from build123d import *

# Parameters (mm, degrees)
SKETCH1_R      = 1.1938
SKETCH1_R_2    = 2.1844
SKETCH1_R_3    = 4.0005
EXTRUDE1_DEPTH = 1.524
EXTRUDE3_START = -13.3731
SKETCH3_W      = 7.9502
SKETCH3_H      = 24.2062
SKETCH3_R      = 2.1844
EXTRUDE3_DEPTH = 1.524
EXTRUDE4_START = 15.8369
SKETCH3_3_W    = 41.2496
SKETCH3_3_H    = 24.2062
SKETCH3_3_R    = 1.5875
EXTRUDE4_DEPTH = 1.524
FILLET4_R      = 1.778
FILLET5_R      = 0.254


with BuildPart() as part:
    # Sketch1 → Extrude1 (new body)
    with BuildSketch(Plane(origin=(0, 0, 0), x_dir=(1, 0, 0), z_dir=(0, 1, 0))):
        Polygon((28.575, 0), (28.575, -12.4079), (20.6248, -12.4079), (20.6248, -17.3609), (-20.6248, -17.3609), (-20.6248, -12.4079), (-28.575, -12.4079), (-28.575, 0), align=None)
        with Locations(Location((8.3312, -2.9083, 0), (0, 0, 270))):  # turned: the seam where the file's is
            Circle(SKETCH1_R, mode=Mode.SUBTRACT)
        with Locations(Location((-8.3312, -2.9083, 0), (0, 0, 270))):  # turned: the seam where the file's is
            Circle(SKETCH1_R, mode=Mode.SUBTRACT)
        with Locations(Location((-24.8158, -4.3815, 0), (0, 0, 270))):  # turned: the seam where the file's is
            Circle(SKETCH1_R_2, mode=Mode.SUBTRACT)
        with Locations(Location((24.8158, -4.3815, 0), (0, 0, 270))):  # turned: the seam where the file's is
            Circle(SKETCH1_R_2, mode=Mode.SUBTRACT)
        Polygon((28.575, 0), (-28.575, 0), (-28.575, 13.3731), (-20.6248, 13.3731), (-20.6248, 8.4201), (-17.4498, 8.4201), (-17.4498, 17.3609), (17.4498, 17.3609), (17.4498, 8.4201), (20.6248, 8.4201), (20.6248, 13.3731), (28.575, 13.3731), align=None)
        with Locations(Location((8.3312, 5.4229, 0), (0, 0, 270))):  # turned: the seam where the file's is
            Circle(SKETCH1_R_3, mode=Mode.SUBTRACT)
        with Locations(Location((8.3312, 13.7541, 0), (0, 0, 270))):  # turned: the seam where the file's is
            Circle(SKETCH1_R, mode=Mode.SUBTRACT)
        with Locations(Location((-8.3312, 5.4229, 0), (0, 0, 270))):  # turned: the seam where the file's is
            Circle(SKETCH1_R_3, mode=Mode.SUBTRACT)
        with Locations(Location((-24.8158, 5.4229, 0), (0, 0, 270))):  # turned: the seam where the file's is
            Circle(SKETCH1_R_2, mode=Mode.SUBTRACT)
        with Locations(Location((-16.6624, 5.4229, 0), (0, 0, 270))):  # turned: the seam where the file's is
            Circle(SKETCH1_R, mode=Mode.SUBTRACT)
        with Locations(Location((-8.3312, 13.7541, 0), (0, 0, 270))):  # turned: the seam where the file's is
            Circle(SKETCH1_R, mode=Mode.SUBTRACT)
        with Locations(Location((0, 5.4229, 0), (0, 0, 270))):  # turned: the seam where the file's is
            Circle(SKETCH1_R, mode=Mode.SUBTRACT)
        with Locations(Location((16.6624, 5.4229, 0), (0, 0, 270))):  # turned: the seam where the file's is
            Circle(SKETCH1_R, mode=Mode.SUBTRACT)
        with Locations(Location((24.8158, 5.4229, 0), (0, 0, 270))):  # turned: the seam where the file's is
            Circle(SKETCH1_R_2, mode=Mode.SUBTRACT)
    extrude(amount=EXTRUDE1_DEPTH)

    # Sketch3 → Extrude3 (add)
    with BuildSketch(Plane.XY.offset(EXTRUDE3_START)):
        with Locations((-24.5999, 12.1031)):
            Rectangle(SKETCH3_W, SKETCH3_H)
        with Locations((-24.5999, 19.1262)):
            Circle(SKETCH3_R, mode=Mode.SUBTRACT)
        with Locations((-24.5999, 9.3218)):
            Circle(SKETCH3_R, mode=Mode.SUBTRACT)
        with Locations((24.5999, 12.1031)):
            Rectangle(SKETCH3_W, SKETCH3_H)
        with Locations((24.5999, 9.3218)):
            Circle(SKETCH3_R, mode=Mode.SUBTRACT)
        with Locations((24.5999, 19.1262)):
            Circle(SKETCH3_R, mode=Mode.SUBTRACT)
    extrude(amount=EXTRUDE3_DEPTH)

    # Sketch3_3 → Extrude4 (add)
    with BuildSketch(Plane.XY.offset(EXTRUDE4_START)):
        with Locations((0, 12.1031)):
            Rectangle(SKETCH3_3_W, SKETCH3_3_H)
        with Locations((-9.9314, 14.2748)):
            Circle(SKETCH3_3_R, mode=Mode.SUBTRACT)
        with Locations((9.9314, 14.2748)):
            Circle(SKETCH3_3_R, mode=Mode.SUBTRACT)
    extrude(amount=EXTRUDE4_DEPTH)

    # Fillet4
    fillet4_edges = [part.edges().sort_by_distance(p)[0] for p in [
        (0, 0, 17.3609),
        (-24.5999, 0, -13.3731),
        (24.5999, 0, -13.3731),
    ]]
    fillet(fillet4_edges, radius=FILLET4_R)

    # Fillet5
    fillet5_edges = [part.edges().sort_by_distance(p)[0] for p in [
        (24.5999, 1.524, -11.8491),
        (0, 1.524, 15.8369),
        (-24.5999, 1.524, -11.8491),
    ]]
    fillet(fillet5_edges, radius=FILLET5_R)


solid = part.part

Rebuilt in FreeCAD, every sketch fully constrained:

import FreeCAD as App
import Part
import Sketcher
Q = App.Units.Quantity


def edges_at(feature, points):
    """Names of the edges that pass closest to the given points."""
    edges = feature.Shape.Edges
    near = lambda p: min(range(len(edges)), key=lambda i: edges[i].distToShape(Part.Vertex(*p))[0])
    return sorted({f"Edge{near(p) + 1}" for p in points})

doc = App.newDocument("Part")
params = doc.addObject("Spreadsheet::Sheet", "Params")
for row, (alias, value) in enumerate([
    ("sketch1_diameter", "0.172 in"),
    ("sketch1_diameter2", "0.094 in"),
    ("sketch1_diameter3", "0.315 in"),
    ("sketch1_width", "0.313 in"),
    ("sketch1_width2", "0.125 in"),
    ("pad1_length", "0.06 in"),
    ("sketch2_diameter", "0.172 in"),
    ("sketch2_width", "0.313 in"),
    ("sketch2_height", "0.953 in"),
    ("pad2_length", "0.06 in"),
    ("sketch3_diameter", "0.125 in"),
    ("sketch3_width", "1.624 in"),
    ("sketch3_height", "0.953 in"),
    ("pad3_length", "0.06 in"),
    ("fillet_radius", "0.07 in"),
    ("fillet2_radius", "0.01 in"),
], start=1):
    params.set(f"A{row}", alias)
    params.set(f"B{row}", "=" + value)
    params.setAlias(f"B{row}", alias)

body = doc.addObject("PartDesign::Body", "Body")

sketch1 = body.newObject("Sketcher::SketchObject", "Sketch")
sketch1.AttachmentSupport = (doc.getObject("XZ_Plane"), [""])
sketch1.MapMode = "FlatFace"
sketch1.addGeometry(Part.LineSegment(App.Vector(28.575, 12.4079, 0), App.Vector(28.575, -13.3731, 0)), False)
sketch1.addGeometry(Part.LineSegment(App.Vector(28.575, -13.3731, 0), App.Vector(20.6248, -13.3731, 0)), False)
sketch1.addGeometry(Part.LineSegment(App.Vector(20.6248, -13.3731, 0), App.Vector(20.6248, -8.4201, 0)), False)
sketch1.addGeometry(Part.LineSegment(App.Vector(20.6248, -8.4201, 0), App.Vector(17.4498, -8.4201, 0)), False)
sketch1.addGeometry(Part.LineSegment(App.Vector(17.4498, -8.4201, 0), App.Vector(17.4498, -17.3609, 0)), False)
sketch1.addGeometry(Part.LineSegment(App.Vector(17.4498, -17.3609, 0), App.Vector(-17.4498, -17.3609, 0)), False)
sketch1.addGeometry(Part.LineSegment(App.Vector(-17.4498, -17.3609, 0), App.Vector(-17.4498, -8.4201, 0)), False)
sketch1.addGeometry(Part.LineSegment(App.Vector(-17.4498, -8.4201, 0), App.Vector(-20.6248, -8.4201, 0)), False)
sketch1.addGeometry(Part.LineSegment(App.Vector(-20.6248, -8.4201, 0), App.Vector(-20.6248, -13.3731, 0)), False)
sketch1.addGeometry(Part.LineSegment(App.Vector(-20.6248, -13.3731, 0), App.Vector(-28.575, -13.3731, 0)), False)
sketch1.addGeometry(Part.LineSegment(App.Vector(-28.575, -13.3731, 0), App.Vector(-28.575, 12.4079, 0)), False)
sketch1.addGeometry(Part.LineSegment(App.Vector(-28.575, 12.4079, 0), App.Vector(-20.6248, 12.4079, 0)), False)
sketch1.addGeometry(Part.LineSegment(App.Vector(-20.6248, 12.4079, 0), App.Vector(-20.6248, 17.3609, 0)), False)
sketch1.addGeometry(Part.LineSegment(App.Vector(-20.6248, 17.3609, 0), App.Vector(20.6248, 17.3609, 0)), False)
sketch1.addGeometry(Part.LineSegment(App.Vector(20.6248, 17.3609, 0), App.Vector(20.6248, 12.4079, 0)), False)
sketch1.addGeometry(Part.LineSegment(App.Vector(20.6248, 12.4079, 0), App.Vector(28.575, 12.4079, 0)), False)
sketch1.addGeometry(Part.Circle(App.Vector(24.8158, 4.3815, 0), App.Vector(0, 0, 1), 2.1844), False)
sketch1.addGeometry(Part.Circle(App.Vector(8.3312, 2.9083, 0), App.Vector(0, 0, 1), 1.1938), False)
sketch1.addGeometry(Part.Circle(App.Vector(-8.3312, 2.9083, 0), App.Vector(0, 0, 1), 1.1938), False)
sketch1.addGeometry(Part.Circle(App.Vector(-24.8158, 4.3815, 0), App.Vector(0, 0, 1), 2.1844), False)
sketch1.addGeometry(Part.Circle(App.Vector(24.8158, -5.4229, 0), App.Vector(0, 0, 1), 2.1844), False)
sketch1.addGeometry(Part.Circle(App.Vector(16.6624, -5.4229, 0), App.Vector(0, 0, 1), 1.1938), False)
sketch1.addGeometry(Part.Circle(App.Vector(8.3312, -5.4229, 0), App.Vector(0, 0, 1), 4.0005), False)
sketch1.addGeometry(Part.Circle(App.Vector(8.3312, -13.7541, 0), App.Vector(0, 0, 1), 1.1938), False)
sketch1.addGeometry(Part.Circle(App.Vector(0, -5.4229, 0), App.Vector(0, 0, 1), 1.1938), False)
sketch1.addGeometry(Part.Circle(App.Vector(-8.3312, -5.4229, 0), App.Vector(0, 0, 1), 4.0005), False)
sketch1.addGeometry(Part.Circle(App.Vector(-16.6624, -5.4229, 0), App.Vector(0, 0, 1), 1.1938), False)
sketch1.addGeometry(Part.Circle(App.Vector(-24.8158, -5.4229, 0), App.Vector(0, 0, 1), 2.1844), False)
sketch1.addGeometry(Part.Circle(App.Vector(-8.3312, -13.7541, 0), App.Vector(0, 0, 1), 1.1938), False)
sketch1.addConstraint(Sketcher.Constraint("Coincident", 0, 2, 1, 1))
sketch1.addConstraint(Sketcher.Constraint("Coincident", 1, 2, 2, 1))
sketch1.addConstraint(Sketcher.Constraint("Coincident", 2, 2, 3, 1))
sketch1.addConstraint(Sketcher.Constraint("Coincident", 3, 2, 4, 1))
sketch1.addConstraint(Sketcher.Constraint("Coincident", 4, 2, 5, 1))
sketch1.addConstraint(Sketcher.Constraint("Coincident", 5, 2, 6, 1))
sketch1.addConstraint(Sketcher.Constraint("Coincident", 6, 2, 7, 1))
sketch1.addConstraint(Sketcher.Constraint("Coincident", 7, 2, 8, 1))
sketch1.addConstraint(Sketcher.Constraint("Coincident", 8, 2, 9, 1))
sketch1.addConstraint(Sketcher.Constraint("Coincident", 9, 2, 10, 1))
sketch1.addConstraint(Sketcher.Constraint("Coincident", 10, 2, 11, 1))
sketch1.addConstraint(Sketcher.Constraint("Coincident", 11, 2, 12, 1))
sketch1.addConstraint(Sketcher.Constraint("Coincident", 12, 2, 13, 1))
sketch1.addConstraint(Sketcher.Constraint("Coincident", 13, 2, 14, 1))
sketch1.addConstraint(Sketcher.Constraint("Coincident", 14, 2, 15, 1))
sketch1.addConstraint(Sketcher.Constraint("Coincident", 15, 2, 0, 1))
sketch1.addConstraint(Sketcher.Constraint("Vertical", 0))
sketch1.addConstraint(Sketcher.Constraint("Horizontal", 1))
sketch1.addConstraint(Sketcher.Constraint("Vertical", 2))
sketch1.addConstraint(Sketcher.Constraint("Horizontal", 3))
sketch1.addConstraint(Sketcher.Constraint("Vertical", 4))
sketch1.addConstraint(Sketcher.Constraint("Horizontal", 5))
sketch1.addConstraint(Sketcher.Constraint("Vertical", 6))
sketch1.addConstraint(Sketcher.Constraint("Horizontal", 7))
sketch1.addConstraint(Sketcher.Constraint("Vertical", 8))
sketch1.addConstraint(Sketcher.Constraint("Horizontal", 9))
sketch1.addConstraint(Sketcher.Constraint("Vertical", 10))
sketch1.addConstraint(Sketcher.Constraint("Horizontal", 11))
sketch1.addConstraint(Sketcher.Constraint("Vertical", 12))
sketch1.addConstraint(Sketcher.Constraint("Horizontal", 13))
sketch1.addConstraint(Sketcher.Constraint("Vertical", 14))
sketch1.addConstraint(Sketcher.Constraint("Horizontal", 15))
sketch1.addConstraint(Sketcher.Constraint("Equal", 17, 18))
sketch1.addConstraint(Sketcher.Constraint("Equal", 16, 19))
sketch1.addConstraint(Sketcher.Constraint("Equal", 19, 20))
sketch1.addConstraint(Sketcher.Constraint("Equal", 18, 21))
sketch1.addConstraint(Sketcher.Constraint("Equal", 21, 23))
sketch1.addConstraint(Sketcher.Constraint("Equal", 23, 24))
sketch1.addConstraint(Sketcher.Constraint("Equal", 22, 25))
sketch1.addConstraint(Sketcher.Constraint("Equal", 24, 26))
sketch1.addConstraint(Sketcher.Constraint("Equal", 20, 27))
sketch1.addConstraint(Sketcher.Constraint("Equal", 26, 28))
sketch1.addConstraint(Sketcher.Constraint("Symmetric", 17, 3, 18, 3, -2))
sketch1.addConstraint(Sketcher.Constraint("Symmetric", 16, 3, 19, 3, -2))
sketch1.addConstraint(Sketcher.Constraint("Symmetric", 22, 3, 25, 3, -2))
sketch1.addConstraint(Sketcher.Constraint("Symmetric", 21, 3, 26, 3, -2))
sketch1.addConstraint(Sketcher.Constraint("Symmetric", 20, 3, 27, 3, -2))
sketch1.addConstraint(Sketcher.Constraint("Symmetric", 23, 3, 28, 3, -2))
sketch1.addConstraint(Sketcher.Constraint("Symmetric", 3, 2, 6, 2, -2))
sketch1.addConstraint(Sketcher.Constraint("Symmetric", 1, 2, 8, 2, -2))
sketch1.addConstraint(Sketcher.Constraint("Symmetric", 11, 2, 14, 2, -2))
sketch1.addConstraint(Sketcher.Constraint("PointOnObject", 24, 3, -2))
sketch1.addConstraint(Sketcher.Constraint("Horizontal", 20, 3, 21, 3))
sketch1.addConstraint(Sketcher.Constraint("Horizontal", 21, 3, 22, 3))
sketch1.addConstraint(Sketcher.Constraint("Horizontal", 22, 3, 24, 3))
sketch1.addConstraint(Sketcher.Constraint("Vertical", 16, 3, 20, 3))
sketch1.addConstraint(Sketcher.Constraint("Vertical", 17, 3, 22, 3))
sketch1.addConstraint(Sketcher.Constraint("Vertical", 22, 3, 23, 3))
sketch1.addConstraint(Sketcher.Constraint("Vertical", 8, 2, 11, 2))
sketch1.addConstraint(Sketcher.Constraint("Equal", 1, 9))
sketch1.addConstraint(Sketcher.Constraint("Equal", 8, 12))
sketch1.addConstraint(Sketcher.Constraint("Diameter", 16, Q("0.172 in")))
sketch1.addConstraint(Sketcher.Constraint("Diameter", 17, Q("0.094 in")))
sketch1.addConstraint(Sketcher.Constraint("Diameter", 22, Q("0.315 in")))
sketch1.addConstraint(Sketcher.Constraint("DistanceX", 1, 2, 1, 1, Q("0.313 in")))
sketch1.addConstraint(Sketcher.Constraint("DistanceX", 3, 2, 3, 1, Q("0.125 in")))
sketch1.addConstraint(Sketcher.Constraint("DistanceX", 5, 2, 5, 1, Q("1.374 in")))
sketch1.addConstraint(Sketcher.Constraint("DistanceY", 0, 2, 0, 1, Q("1.015 in")))
sketch1.addConstraint(Sketcher.Constraint("DistanceY", 2, 1, 2, 2, Q("0.195 in")))
sketch1.addConstraint(Sketcher.Constraint("DistanceY", 4, 2, 4, 1, Q("0.352 in")))
sketch1.addConstraint(Sketcher.Constraint("DistanceX", 3, 2, 20, 3, Q("0.29 in")))
sketch1.addConstraint(Sketcher.Constraint("DistanceY", 5, 2, 26, 3, Q("0.47 in")))
sketch1.addConstraint(Sketcher.Constraint("DistanceY", 28, 3, 6, 2, Q("0.21 in")))
sketch1.addConstraint(Sketcher.Constraint("DistanceX", -1, 1, 17, 3, Q("0.328 in")))
sketch1.addConstraint(Sketcher.Constraint("DistanceX", -1, 1, 21, 3, Q("0.656 in")))
sketch1.addConstraint(Sketcher.Constraint("DistanceY", 17, 3, 16, 3, Q("0.058 in")))
sketch1.addConstraint(Sketcher.Constraint("DistanceY", 20, 3, 16, 3, Q("0.386 in")))
sketch1.addConstraint(Sketcher.Constraint("DistanceY", -1, 1, 16, 3, Q("0.1725 in")))
sketch1.setExpression("Constraints[61]", "Params.sketch1_diameter")
sketch1.setExpression("Constraints[62]", "Params.sketch1_diameter2")
sketch1.setExpression("Constraints[63]", "Params.sketch1_diameter3")
sketch1.setExpression("Constraints[64]", "Params.sketch1_width")
sketch1.setExpression("Constraints[65]", "Params.sketch1_width2")
pad1 = body.newObject("PartDesign::Pad", "Pad")
pad1.Profile = sketch1
pad1.setExpression("Length", "Params.pad1_length")
pad1.Reversed = True

sketch2 = body.newObject("Sketcher::SketchObject", "Sketch001")
sketch2.AttachmentSupport = (doc.getObject("XY_Plane"), [""])
sketch2.MapMode = "FlatFace"
sketch2.AttachmentOffset = App.Placement(App.Vector(0, 0, -0.5265 * 25.4), App.Rotation())
sketch2.addGeometry(Part.LineSegment(App.Vector(-28.575, 24.2062, 0), App.Vector(-28.575, 0, 0)), False)
sketch2.addGeometry(Part.LineSegment(App.Vector(-28.575, 0, 0), App.Vector(-20.6248, 0, 0)), False)
sketch2.addGeometry(Part.LineSegment(App.Vector(-20.6248, 0, 0), App.Vector(-20.6248, 24.2062, 0)), False)
sketch2.addGeometry(Part.LineSegment(App.Vector(-20.6248, 24.2062, 0), App.Vector(-28.575, 24.2062, 0)), False)
sketch2.addGeometry(Part.Circle(App.Vector(-24.5999, 9.3218, 0), App.Vector(0, 0, 1), 2.1844), False)
sketch2.addGeometry(Part.Circle(App.Vector(-24.5999, 19.1262, 0), App.Vector(0, 0, 1), 2.1844), False)
sketch2.addGeometry(Part.LineSegment(App.Vector(20.6248, 24.2062, 0), App.Vector(20.6248, 0, 0)), False)
sketch2.addGeometry(Part.LineSegment(App.Vector(20.6248, 0, 0), App.Vector(28.575, 0, 0)), False)
sketch2.addGeometry(Part.LineSegment(App.Vector(28.575, 0, 0), App.Vector(28.575, 24.2062, 0)), False)
sketch2.addGeometry(Part.LineSegment(App.Vector(28.575, 24.2062, 0), App.Vector(20.6248, 24.2062, 0)), False)
sketch2.addGeometry(Part.Circle(App.Vector(24.5999, 9.3218, 0), App.Vector(0, 0, 1), 2.1844), False)
sketch2.addGeometry(Part.Circle(App.Vector(24.5999, 19.1262, 0), App.Vector(0, 0, 1), 2.1844), False)
sketch2.addConstraint(Sketcher.Constraint("Coincident", 0, 2, 1, 1))
sketch2.addConstraint(Sketcher.Constraint("Coincident", 1, 2, 2, 1))
sketch2.addConstraint(Sketcher.Constraint("Coincident", 2, 2, 3, 1))
sketch2.addConstraint(Sketcher.Constraint("Coincident", 3, 2, 0, 1))
sketch2.addConstraint(Sketcher.Constraint("Coincident", 6, 2, 7, 1))
sketch2.addConstraint(Sketcher.Constraint("Coincident", 7, 2, 8, 1))
sketch2.addConstraint(Sketcher.Constraint("Coincident", 8, 2, 9, 1))
sketch2.addConstraint(Sketcher.Constraint("Coincident", 9, 2, 6, 1))
sketch2.addConstraint(Sketcher.Constraint("Vertical", 0))
sketch2.addConstraint(Sketcher.Constraint("Horizontal", 1))
sketch2.addConstraint(Sketcher.Constraint("Vertical", 2))
sketch2.addConstraint(Sketcher.Constraint("Horizontal", 3))
sketch2.addConstraint(Sketcher.Constraint("Vertical", 6))
sketch2.addConstraint(Sketcher.Constraint("Horizontal", 7))
sketch2.addConstraint(Sketcher.Constraint("Vertical", 8))
sketch2.addConstraint(Sketcher.Constraint("Horizontal", 9))
sketch2.addConstraint(Sketcher.Constraint("Equal", 4, 5))
sketch2.addConstraint(Sketcher.Constraint("Equal", 5, 10))
sketch2.addConstraint(Sketcher.Constraint("Equal", 10, 11))
sketch2.addConstraint(Sketcher.Constraint("Symmetric", 1, 2, 6, 2, -1, 1))
sketch2.addConstraint(Sketcher.Constraint("Symmetric", 4, 3, 10, 3, -2))
sketch2.addConstraint(Sketcher.Constraint("Symmetric", 5, 3, 11, 3, -2))
sketch2.addConstraint(Sketcher.Constraint("Symmetric", 0, 2, 7, 2, -2))
sketch2.addConstraint(Sketcher.Constraint("Horizontal", 3, 2, 8, 2))
sketch2.addConstraint(Sketcher.Constraint("Vertical", 4, 3, 5, 3))
sketch2.addConstraint(Sketcher.Constraint("Diameter", 4, Q("0.172 in")))
sketch2.addConstraint(Sketcher.Constraint("DistanceY", 5, 3, 2, 2, Q("0.2 in")))
sketch2.addConstraint(Sketcher.Constraint("DistanceX", 1, 1, 1, 2, Q("0.313 in")))
sketch2.addConstraint(Sketcher.Constraint("DistanceY", 0, 2, 0, 1, Q("0.953 in")))
sketch2.addConstraint(Sketcher.Constraint("DistanceY", -1, 1, 4, 3, Q("0.367 in")))
sketch2.addConstraint(Sketcher.Constraint("DistanceX", 0, 2, -1, 1, Q("1.125 in")))
sketch2.addConstraint(Sketcher.Constraint("DistanceX", 4, 3, 10, 3, Q("1.937 in")))
sketch2.setExpression("Constraints[25]", "Params.sketch2_diameter")
sketch2.setExpression("Constraints[27]", "Params.sketch2_width")
sketch2.setExpression("Constraints[28]", "Params.sketch2_height")
pad2 = body.newObject("PartDesign::Pad", "Pad001")
pad2.Profile = sketch2
pad2.setExpression("Length", "Params.pad2_length")

sketch3 = body.newObject("Sketcher::SketchObject", "Sketch002")
sketch3.AttachmentSupport = (doc.getObject("XY_Plane"), [""])
sketch3.MapMode = "FlatFace"
sketch3.AttachmentOffset = App.Placement(App.Vector(0, 0, 0.6235 * 25.4), App.Rotation())
sketch3.addGeometry(Part.LineSegment(App.Vector(-20.6248, 24.2062, 0), App.Vector(-20.6248, 0, 0)), False)
sketch3.addGeometry(Part.LineSegment(App.Vector(-20.6248, 0, 0), App.Vector(20.6248, 0, 0)), False)
sketch3.addGeometry(Part.LineSegment(App.Vector(20.6248, 0, 0), App.Vector(20.6248, 24.2062, 0)), False)
sketch3.addGeometry(Part.LineSegment(App.Vector(20.6248, 24.2062, 0), App.Vector(-20.6248, 24.2062, 0)), False)
sketch3.addGeometry(Part.Circle(App.Vector(-9.9314, 14.2748, 0), App.Vector(0, 0, 1), 1.5875), False)
sketch3.addGeometry(Part.Circle(App.Vector(9.9314, 14.2748, 0), App.Vector(0, 0, 1), 1.5875), False)
sketch3.addConstraint(Sketcher.Constraint("Coincident", 0, 2, 1, 1))
sketch3.addConstraint(Sketcher.Constraint("Coincident", 1, 2, 2, 1))
sketch3.addConstraint(Sketcher.Constraint("Coincident", 2, 2, 3, 1))
sketch3.addConstraint(Sketcher.Constraint("Coincident", 3, 2, 0, 1))
sketch3.addConstraint(Sketcher.Constraint("Vertical", 0))
sketch3.addConstraint(Sketcher.Constraint("Horizontal", 1))
sketch3.addConstraint(Sketcher.Constraint("Vertical", 2))
sketch3.addConstraint(Sketcher.Constraint("Horizontal", 3))
sketch3.addConstraint(Sketcher.Constraint("Equal", 4, 5))
sketch3.addConstraint(Sketcher.Constraint("Symmetric", 0, 2, 1, 2, -1, 1))
sketch3.addConstraint(Sketcher.Constraint("Symmetric", 4, 3, 5, 3, -2))
sketch3.addConstraint(Sketcher.Constraint("Diameter", 4, Q("0.125 in")))
sketch3.addConstraint(Sketcher.Constraint("DistanceX", 1, 1, 1, 2, Q("1.624 in")))
sketch3.addConstraint(Sketcher.Constraint("DistanceY", 0, 2, 0, 1, Q("0.953 in")))
sketch3.addConstraint(Sketcher.Constraint("DistanceX", 4, 3, -1, 1, Q("0.391 in")))
sketch3.addConstraint(Sketcher.Constraint("DistanceY", -1, 1, 4, 3, Q("0.562 in")))
sketch3.setExpression("Constraints[11]", "Params.sketch3_diameter")
sketch3.setExpression("Constraints[12]", "Params.sketch3_width")
sketch3.setExpression("Constraints[13]", "Params.sketch3_height")
pad3 = body.newObject("PartDesign::Pad", "Pad002")
pad3.Profile = sketch3
pad3.setExpression("Length", "Params.pad3_length")
doc.recompute()

fillet = body.newObject("PartDesign::Fillet", "Fillet")
fillet.Base = (pad3, edges_at(pad3, [(0, 0, 17.361), (-24.6, 0, -13.373), (24.6, 0, -13.373)]))
fillet.setExpression("Radius", "Params.fillet_radius")
doc.recompute()

fillet2 = body.newObject("PartDesign::Fillet", "Fillet001")
fillet2.Base = (fillet, edges_at(fillet, [(24.6, 1.524, -11.849), (0, 1.524, 15.837), (-24.6, 1.524, -11.849)]))
fillet2.setExpression("Radius", "Params.fillet2_radius")

doc.recompute()
